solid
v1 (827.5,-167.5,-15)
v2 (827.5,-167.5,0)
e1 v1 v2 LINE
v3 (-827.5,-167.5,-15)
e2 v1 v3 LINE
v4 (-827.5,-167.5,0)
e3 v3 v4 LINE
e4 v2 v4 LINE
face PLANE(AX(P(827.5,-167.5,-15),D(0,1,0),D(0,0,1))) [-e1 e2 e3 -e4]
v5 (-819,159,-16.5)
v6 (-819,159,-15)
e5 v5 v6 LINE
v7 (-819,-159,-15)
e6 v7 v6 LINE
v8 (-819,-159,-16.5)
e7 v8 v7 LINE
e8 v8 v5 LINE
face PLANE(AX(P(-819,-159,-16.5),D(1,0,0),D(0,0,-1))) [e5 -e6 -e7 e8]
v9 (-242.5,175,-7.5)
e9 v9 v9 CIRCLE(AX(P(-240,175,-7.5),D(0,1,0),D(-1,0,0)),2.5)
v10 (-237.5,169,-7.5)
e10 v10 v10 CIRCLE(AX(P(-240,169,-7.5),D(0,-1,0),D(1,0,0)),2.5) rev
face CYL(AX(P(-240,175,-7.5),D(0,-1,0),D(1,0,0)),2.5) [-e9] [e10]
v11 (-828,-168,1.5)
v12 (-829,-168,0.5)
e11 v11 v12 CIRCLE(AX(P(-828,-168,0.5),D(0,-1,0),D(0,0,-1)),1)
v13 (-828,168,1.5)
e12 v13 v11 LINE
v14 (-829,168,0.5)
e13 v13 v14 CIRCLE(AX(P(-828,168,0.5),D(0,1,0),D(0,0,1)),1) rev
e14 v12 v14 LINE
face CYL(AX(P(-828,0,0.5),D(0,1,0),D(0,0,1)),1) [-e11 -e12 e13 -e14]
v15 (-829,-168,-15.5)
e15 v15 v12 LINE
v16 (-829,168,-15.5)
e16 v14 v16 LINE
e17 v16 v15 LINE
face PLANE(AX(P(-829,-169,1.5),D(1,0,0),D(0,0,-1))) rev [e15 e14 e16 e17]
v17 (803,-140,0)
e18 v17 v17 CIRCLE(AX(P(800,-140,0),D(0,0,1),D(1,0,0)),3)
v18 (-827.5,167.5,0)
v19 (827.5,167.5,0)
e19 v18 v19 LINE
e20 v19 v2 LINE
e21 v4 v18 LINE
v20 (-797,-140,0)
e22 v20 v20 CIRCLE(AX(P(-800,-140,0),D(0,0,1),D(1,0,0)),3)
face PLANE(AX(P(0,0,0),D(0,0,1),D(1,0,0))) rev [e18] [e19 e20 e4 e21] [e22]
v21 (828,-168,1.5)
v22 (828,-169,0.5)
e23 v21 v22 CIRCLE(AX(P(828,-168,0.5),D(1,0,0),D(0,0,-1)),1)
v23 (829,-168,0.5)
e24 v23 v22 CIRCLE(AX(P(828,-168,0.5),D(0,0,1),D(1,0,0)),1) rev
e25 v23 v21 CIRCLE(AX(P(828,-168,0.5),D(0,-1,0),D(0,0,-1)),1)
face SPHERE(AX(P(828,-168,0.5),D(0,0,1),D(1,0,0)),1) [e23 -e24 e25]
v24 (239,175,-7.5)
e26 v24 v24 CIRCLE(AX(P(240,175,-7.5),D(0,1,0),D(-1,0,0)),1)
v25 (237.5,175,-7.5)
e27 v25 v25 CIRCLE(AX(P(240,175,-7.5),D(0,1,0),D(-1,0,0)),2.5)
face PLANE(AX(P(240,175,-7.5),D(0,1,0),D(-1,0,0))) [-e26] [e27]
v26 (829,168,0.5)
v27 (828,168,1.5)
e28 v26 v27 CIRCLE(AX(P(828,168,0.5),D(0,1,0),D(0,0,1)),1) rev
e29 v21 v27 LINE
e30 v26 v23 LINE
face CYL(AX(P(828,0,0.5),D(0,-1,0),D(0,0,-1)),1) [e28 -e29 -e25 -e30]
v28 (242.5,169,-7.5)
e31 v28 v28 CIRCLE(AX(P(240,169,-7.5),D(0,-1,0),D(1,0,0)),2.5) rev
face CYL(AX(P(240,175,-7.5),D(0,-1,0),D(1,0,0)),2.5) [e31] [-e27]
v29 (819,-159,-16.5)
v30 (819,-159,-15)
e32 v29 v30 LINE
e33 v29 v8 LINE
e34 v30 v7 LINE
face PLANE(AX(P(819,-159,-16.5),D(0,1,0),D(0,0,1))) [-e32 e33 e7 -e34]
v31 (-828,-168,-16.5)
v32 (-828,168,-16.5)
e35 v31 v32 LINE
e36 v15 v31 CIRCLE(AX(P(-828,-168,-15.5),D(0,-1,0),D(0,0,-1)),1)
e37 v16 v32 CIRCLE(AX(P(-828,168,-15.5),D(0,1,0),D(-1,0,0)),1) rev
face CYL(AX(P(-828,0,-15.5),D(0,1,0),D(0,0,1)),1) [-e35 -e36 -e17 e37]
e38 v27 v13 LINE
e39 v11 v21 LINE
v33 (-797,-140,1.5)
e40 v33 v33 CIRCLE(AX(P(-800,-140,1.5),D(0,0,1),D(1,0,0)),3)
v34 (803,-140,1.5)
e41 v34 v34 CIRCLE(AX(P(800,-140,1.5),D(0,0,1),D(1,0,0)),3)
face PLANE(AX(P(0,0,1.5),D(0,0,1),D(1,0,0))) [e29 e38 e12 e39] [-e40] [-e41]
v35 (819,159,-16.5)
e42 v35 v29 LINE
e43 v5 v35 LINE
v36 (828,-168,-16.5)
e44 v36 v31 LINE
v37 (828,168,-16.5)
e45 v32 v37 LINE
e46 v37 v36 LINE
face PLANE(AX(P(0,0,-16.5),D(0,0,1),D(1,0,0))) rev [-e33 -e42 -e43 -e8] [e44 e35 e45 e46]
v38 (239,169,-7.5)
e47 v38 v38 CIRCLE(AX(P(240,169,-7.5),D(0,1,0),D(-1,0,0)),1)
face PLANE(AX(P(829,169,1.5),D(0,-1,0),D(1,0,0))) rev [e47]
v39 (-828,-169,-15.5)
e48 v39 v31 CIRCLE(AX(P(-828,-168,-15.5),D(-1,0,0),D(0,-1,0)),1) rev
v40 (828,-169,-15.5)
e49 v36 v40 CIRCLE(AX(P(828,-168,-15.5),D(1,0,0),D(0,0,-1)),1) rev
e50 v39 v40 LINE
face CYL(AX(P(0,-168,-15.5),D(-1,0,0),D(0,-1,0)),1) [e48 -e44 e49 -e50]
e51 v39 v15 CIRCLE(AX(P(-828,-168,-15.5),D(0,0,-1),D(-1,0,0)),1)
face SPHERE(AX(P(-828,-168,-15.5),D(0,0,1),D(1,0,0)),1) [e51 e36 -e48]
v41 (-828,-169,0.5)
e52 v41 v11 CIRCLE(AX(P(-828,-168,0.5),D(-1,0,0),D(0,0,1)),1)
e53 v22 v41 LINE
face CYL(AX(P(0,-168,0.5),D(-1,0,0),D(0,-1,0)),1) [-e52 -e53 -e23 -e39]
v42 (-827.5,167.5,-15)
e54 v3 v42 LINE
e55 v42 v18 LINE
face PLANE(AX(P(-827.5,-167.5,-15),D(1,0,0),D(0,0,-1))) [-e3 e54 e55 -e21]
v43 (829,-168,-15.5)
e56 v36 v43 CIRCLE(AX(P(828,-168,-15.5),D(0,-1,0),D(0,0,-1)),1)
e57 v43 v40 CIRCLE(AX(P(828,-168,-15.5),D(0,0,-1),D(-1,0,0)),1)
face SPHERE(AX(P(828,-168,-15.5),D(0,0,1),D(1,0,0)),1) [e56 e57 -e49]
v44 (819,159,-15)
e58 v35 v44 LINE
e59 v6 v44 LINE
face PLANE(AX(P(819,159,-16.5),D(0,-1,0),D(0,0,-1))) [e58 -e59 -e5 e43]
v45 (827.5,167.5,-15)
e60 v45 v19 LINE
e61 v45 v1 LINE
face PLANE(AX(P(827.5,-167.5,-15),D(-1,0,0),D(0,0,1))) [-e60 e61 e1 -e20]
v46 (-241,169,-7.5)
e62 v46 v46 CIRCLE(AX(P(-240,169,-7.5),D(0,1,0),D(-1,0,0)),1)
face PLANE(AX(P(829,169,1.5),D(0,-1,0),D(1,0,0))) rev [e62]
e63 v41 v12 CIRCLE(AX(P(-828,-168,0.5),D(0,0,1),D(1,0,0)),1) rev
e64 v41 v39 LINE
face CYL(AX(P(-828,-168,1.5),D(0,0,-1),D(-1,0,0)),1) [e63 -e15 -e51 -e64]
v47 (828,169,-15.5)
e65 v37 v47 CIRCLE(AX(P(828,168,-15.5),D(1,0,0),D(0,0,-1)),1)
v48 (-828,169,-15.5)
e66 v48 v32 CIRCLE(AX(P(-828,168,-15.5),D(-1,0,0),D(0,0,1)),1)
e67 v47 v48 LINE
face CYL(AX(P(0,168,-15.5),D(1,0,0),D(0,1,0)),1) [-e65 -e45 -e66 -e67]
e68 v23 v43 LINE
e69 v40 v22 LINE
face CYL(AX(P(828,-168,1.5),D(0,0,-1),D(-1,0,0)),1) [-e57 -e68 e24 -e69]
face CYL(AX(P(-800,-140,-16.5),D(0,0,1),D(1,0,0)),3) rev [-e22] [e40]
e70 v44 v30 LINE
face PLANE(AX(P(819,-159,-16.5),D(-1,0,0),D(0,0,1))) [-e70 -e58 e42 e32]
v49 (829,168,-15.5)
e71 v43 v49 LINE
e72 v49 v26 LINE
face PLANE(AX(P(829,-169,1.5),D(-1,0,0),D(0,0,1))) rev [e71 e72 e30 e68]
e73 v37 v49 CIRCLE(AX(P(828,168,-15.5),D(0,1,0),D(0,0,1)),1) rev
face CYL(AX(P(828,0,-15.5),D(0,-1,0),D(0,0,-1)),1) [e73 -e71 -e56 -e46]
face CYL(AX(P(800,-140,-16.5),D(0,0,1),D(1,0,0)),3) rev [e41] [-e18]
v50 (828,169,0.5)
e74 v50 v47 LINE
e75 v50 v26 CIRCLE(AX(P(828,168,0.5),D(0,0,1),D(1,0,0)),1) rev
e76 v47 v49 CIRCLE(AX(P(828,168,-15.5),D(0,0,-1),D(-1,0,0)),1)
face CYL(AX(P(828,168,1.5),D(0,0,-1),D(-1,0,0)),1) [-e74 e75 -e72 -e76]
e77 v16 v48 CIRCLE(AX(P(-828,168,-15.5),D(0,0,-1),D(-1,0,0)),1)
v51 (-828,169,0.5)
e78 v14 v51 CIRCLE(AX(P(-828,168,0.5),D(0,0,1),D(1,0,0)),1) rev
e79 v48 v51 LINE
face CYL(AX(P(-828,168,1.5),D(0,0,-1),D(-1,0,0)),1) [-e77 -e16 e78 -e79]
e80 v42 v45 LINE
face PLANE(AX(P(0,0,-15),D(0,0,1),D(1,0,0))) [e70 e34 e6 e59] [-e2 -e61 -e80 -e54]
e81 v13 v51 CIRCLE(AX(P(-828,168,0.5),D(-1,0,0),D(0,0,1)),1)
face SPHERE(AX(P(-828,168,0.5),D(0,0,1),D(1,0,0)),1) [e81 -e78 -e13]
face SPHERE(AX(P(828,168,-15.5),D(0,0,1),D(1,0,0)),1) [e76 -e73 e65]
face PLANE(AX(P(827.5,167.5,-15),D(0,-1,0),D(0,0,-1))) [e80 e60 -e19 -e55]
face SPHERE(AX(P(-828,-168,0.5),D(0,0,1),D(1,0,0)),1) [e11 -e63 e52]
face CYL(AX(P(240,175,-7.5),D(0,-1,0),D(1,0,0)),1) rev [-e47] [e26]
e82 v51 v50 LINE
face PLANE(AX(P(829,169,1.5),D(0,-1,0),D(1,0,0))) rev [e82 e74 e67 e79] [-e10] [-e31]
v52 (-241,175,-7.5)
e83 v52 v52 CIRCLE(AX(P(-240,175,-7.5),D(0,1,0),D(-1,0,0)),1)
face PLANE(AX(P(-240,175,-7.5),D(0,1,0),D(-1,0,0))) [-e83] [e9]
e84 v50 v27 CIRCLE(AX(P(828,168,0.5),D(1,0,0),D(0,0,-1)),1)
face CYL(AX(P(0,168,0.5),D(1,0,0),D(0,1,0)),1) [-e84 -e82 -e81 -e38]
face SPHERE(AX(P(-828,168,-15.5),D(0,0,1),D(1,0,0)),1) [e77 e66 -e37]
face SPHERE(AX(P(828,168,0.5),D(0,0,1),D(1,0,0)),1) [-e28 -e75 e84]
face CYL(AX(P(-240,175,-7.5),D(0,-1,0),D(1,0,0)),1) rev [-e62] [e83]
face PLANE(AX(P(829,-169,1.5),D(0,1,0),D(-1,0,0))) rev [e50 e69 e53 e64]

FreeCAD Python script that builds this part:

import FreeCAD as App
import Part
import Sketcher
from FreeCAD import Vector


def edges_at(feature, points):
    """Names of the edges that pass closest to the given points."""
    edges = feature.Shape.Edges
    near = lambda p: min(range(len(edges)), key=lambda i: edges[i].distToShape(Part.Vertex(*p))[0])
    return sorted({f"Edge{near(p) + 1}" for p in points})

doc = App.newDocument("Part")
params = doc.addObject("Spreadsheet::Sheet", "Params")
for row, (alias, value) in enumerate([
    ("sketch1_width", "1658 mm"),
    ("sketch1_height", "338 mm"),
    ("pad1_length", "1.5 mm"),
    ("sketch2_width", "1658 mm"),
    ("sketch2_width2", "1655 mm"),
    ("sketch2_height", "338 mm"),
    ("sketch2_height2", "335 mm"),
    ("pad2_length", "15 mm"),
    ("sketch3_width", "1658 mm"),
    ("sketch3_width2", "1638 mm"),
    ("sketch3_height", "338 mm"),
    ("sketch3_height2", "318 mm"),
    ("pad3_length", "1.5 mm"),
    ("sketch4_diameter", "5 mm"),
    ("sketch4_diameter2", "2 mm"),
    ("pad4_length", "6 mm"),
    ("sketch5_diameter", "6 mm"),
    ("fillet_radius", "1 mm"),
], start=1):
    params.set(f"A{row}", alias)
    params.set(f"B{row}", "=" + value)
    params.setAlias(f"B{row}", alias)

body = doc.addObject("PartDesign::Body", "Body")

sketch1 = body.newObject("Sketcher::SketchObject", "Sketch")
sketch1.AttachmentSupport = (doc.getObject("XY_Plane"), [""])
sketch1.MapMode = "FlatFace"
sketch1.addGeometry(Part.LineSegment(Vector(-829, 169, 0), Vector(-829, -169, 0)), False)
sketch1.addGeometry(Part.LineSegment(Vector(-829, -169, 0), Vector(829, -169, 0)), False)
sketch1.addGeometry(Part.LineSegment(Vector(829, -169, 0), Vector(829, 169, 0)), False)
sketch1.addGeometry(Part.LineSegment(Vector(829, 169, 0), Vector(-829, 169, 0)), False)
sketch1.addConstraint(Sketcher.Constraint("Coincident", 0, 2, 1, 1))
sketch1.addConstraint(Sketcher.Constraint("Coincident", 1, 2, 2, 1))
sketch1.addConstraint(Sketcher.Constraint("Coincident", 2, 2, 3, 1))
sketch1.addConstraint(Sketcher.Constraint("Coincident", 3, 2, 0, 1))
sketch1.addConstraint(Sketcher.Constraint("Vertical", 0))
sketch1.addConstraint(Sketcher.Constraint("Horizontal", 1))
sketch1.addConstraint(Sketcher.Constraint("Vertical", 2))
sketch1.addConstraint(Sketcher.Constraint("Horizontal", 3))
sketch1.addConstraint(Sketcher.Constraint("Symmetric", 0, 2, 2, 2, -1, 1))
sketch1.addConstraint(Sketcher.Constraint("DistanceX", 1, 1, 1, 2, 1658.0))
sketch1.addConstraint(Sketcher.Constraint("DistanceY", 0, 2, 0, 1, 338.0))
sketch1.setExpression("Constraints[9]", "Params.sketch1_width")
sketch1.setExpression("Constraints[10]", "Params.sketch1_height")
pad1 = body.newObject("PartDesign::Pad", "Pad")
pad1.Profile = sketch1
pad1.setExpression("Length", "Params.pad1_length")

sketch2 = body.newObject("Sketcher::SketchObject", "Sketch001")
sketch2.AttachmentSupport = (doc.getObject("XY_Plane"), [""])
sketch2.MapMode = "FlatFace"
sketch2.addGeometry(Part.LineSegment(Vector(829, 169, 0), Vector(829, -169, 0)), False)
sketch2.addGeometry(Part.LineSegment(Vector(829, -169, 0), Vector(-829, -169, 0)), False)
sketch2.addGeometry(Part.LineSegment(Vector(-829, -169, 0), Vector(-829, 169, 0)), False)
sketch2.addGeometry(Part.LineSegment(Vector(-829, 169, 0), Vector(829, 169, 0)), False)
sketch2.addGeometry(Part.LineSegment(Vector(-828, -168, 0), Vector(828, -168, 0)), False)
sketch2.addGeometry(Part.LineSegment(Vector(828, -168, 0), Vector(828, 168, 0)), False)
sketch2.addGeometry(Part.LineSegment(Vector(828, 168, 0), Vector(-828, 168, 0)), False)
sketch2.addGeometry(Part.LineSegment(Vector(-828, 168, 0), Vector(-828, -168, 0)), False)
sketch2.addConstraint(Sketcher.Constraint("Coincident", 0, 2, 1, 1))
sketch2.addConstraint(Sketcher.Constraint("Coincident", 1, 2, 2, 1))
sketch2.addConstraint(Sketcher.Constraint("Coincident", 2, 2, 3, 1))
sketch2.addConstraint(Sketcher.Constraint("Coincident", 3, 2, 0, 1))
sketch2.addConstraint(Sketcher.Constraint("Coincident", 4, 2, 5, 1))
sketch2.addConstraint(Sketcher.Constraint("Coincident", 5, 2, 6, 1))
sketch2.addConstraint(Sketcher.Constraint("Coincident", 6, 2, 7, 1))
sketch2.addConstraint(Sketcher.Constraint("Coincident", 7, 2, 4, 1))
sketch2.addConstraint(Sketcher.Constraint("Vertical", 0))
sketch2.addConstraint(Sketcher.Constraint("Horizontal", 1))
sketch2.addConstraint(Sketcher.Constraint("Vertical", 2))
sketch2.addConstraint(Sketcher.Constraint("Horizontal", 3))
sketch2.addConstraint(Sketcher.Constraint("Horizontal", 4))
sketch2.addConstraint(Sketcher.Constraint("Vertical", 5))
sketch2.addConstraint(Sketcher.Constraint("Horizontal", 6))
sketch2.addConstraint(Sketcher.Constraint("Vertical", 7))
sketch2.addConstraint(Sketcher.Constraint("Symmetric", 0, 2, 2, 2, -1, 1))
sketch2.addConstraint(Sketcher.Constraint("Symmetric", 4, 2, 6, 2, -1, 1))
sketch2.addConstraint(Sketcher.Constraint("DistanceX", 1, 2, 1, 1, 1658.0))
sketch2.addConstraint(Sketcher.Constraint("DistanceX", 4, 1, 4, 2, 1655.0))
sketch2.addConstraint(Sketcher.Constraint("DistanceY", 0, 2, 0, 1, 338.0))
sketch2.addConstraint(Sketcher.Constraint("DistanceY", 5, 1, 5, 2, 335.0))
sketch2.setExpression("Constraints[18]", "Params.sketch2_width")
sketch2.setExpression("Constraints[19]", "Params.sketch2_width2")
sketch2.setExpression("Constraints[20]", "Params.sketch2_height")
sketch2.setExpression("Constraints[21]", "Params.sketch2_height2")
pad2 = body.newObject("PartDesign::Pad", "Pad001")
pad2.Profile = sketch2
pad2.setExpression("Length", "Params.pad2_length")
pad2.Reversed = True

sketch3 = body.newObject("Sketcher::SketchObject", "Sketch002")
sketch3.AttachmentSupport = (doc.getObject("XY_Plane"), [""])
sketch3.MapMode = "FlatFace"
sketch3.AttachmentOffset = App.Placement(Vector(0, 0, -15), App.Rotation())
sketch3.addGeometry(Part.LineSegment(Vector(829, 169, 0), Vector(829, -169, 0)), False)
sketch3.addGeometry(Part.LineSegment(Vector(829, -169, 0), Vector(-829, -169, 0)), False)
sketch3.addGeometry(Part.LineSegment(Vector(-829, -169, 0), Vector(-829, 169, 0)), False)
sketch3.addGeometry(Part.LineSegment(Vector(-829, 169, 0), Vector(829, 169, 0)), False)
sketch3.addGeometry(Part.LineSegment(Vector(-819, -159, 0), Vector(819, -159, 0)), False)
sketch3.addGeometry(Part.LineSegment(Vector(819, -159, 0), Vector(819, 159, 0)), False)
sketch3.addGeometry(Part.LineSegment(Vector(819, 159, 0), Vector(-819, 159, 0)), False)
sketch3.addGeometry(Part.LineSegment(Vector(-819, 159, 0), Vector(-819, -159, 0)), False)
sketch3.addConstraint(Sketcher.Constraint("Coincident", 0, 2, 1, 1))
sketch3.addConstraint(Sketcher.Constraint("Coincident", 1, 2, 2, 1))
sketch3.addConstraint(Sketcher.Constraint("Coincident", 2, 2, 3, 1))
sketch3.addConstraint(Sketcher.Constraint("Coincident", 3, 2, 0, 1))
sketch3.addConstraint(Sketcher.Constraint("Coincident", 4, 2, 5, 1))
sketch3.addConstraint(Sketcher.Constraint("Coincident", 5, 2, 6, 1))
sketch3.addConstraint(Sketcher.Constraint("Coincident", 6, 2, 7, 1))
sketch3.addConstraint(Sketcher.Constraint("Coincident", 7, 2, 4, 1))
sketch3.addConstraint(Sketcher.Constraint("Vertical", 0))
sketch3.addConstraint(Sketcher.Constraint("Horizontal", 1))
sketch3.addConstraint(Sketcher.Constraint("Vertical", 2))
sketch3.addConstraint(Sketcher.Constraint("Horizontal", 3))
sketch3.addConstraint(Sketcher.Constraint("Horizontal", 4))
sketch3.addConstraint(Sketcher.Constraint("Vertical", 5))
sketch3.addConstraint(Sketcher.Constraint("Horizontal", 6))
sketch3.addConstraint(Sketcher.Constraint("Vertical", 7))
sketch3.addConstraint(Sketcher.Constraint("Symmetric", 0, 2, 2, 2, -1, 1))
sketch3.addConstraint(Sketcher.Constraint("Symmetric", 4, 2, 6, 2, -1, 1))
sketch3.addConstraint(Sketcher.Constraint("DistanceX", 1, 2, 1, 1, 1658.0))
sketch3.addConstraint(Sketcher.Constraint("DistanceX", 4, 1, 4, 2, 1638.0))
sketch3.addConstraint(Sketcher.Constraint("DistanceY", 0, 2, 0, 1, 338.0))
sketch3.addConstraint(Sketcher.Constraint("DistanceY", 5, 1, 5, 2, 318.0))
sketch3.setExpression("Constraints[18]", "Params.sketch3_width")
sketch3.setExpression("Constraints[19]", "Params.sketch3_width2")
sketch3.setExpression("Constraints[20]", "Params.sketch3_height")
sketch3.setExpression("Constraints[21]", "Params.sketch3_height2")
pad3 = body.newObject("PartDesign::Pad", "Pad002")
pad3.Profile = sketch3
pad3.setExpression("Length", "Params.pad3_length")
pad3.Reversed = True

sketch4 = body.newObject("Sketcher::SketchObject", "Sketch003")
sketch4.AttachmentSupport = (doc.getObject("XZ_Plane"), [""])
sketch4.MapMode = "FlatFace"
sketch4.AttachmentOffset = App.Placement(Vector(0, 0, -169), App.Rotation())
sketch4.addGeometry(Part.Circle(Vector(240, -7.5, 0), Vector(0, 0, 1), 2.5), False)
sketch4.addGeometry(Part.Circle(Vector(240, -7.5, 0), Vector(0, 0, 1), 1), False)
sketch4.addGeometry(Part.Circle(Vector(-240, -7.5, 0), Vector(0, 0, 1), 2.5), False)
sketch4.addGeometry(Part.Circle(Vector(-240, -7.5, 0), Vector(0, 0, 1), 1), False)
sketch4.addConstraint(Sketcher.Constraint("Coincident", 1, 3, 0, 3))
sketch4.addConstraint(Sketcher.Constraint("Coincident", 3, 3, 2, 3))
sketch4.addConstraint(Sketcher.Constraint("Equal", 0, 2))
sketch4.addConstraint(Sketcher.Constraint("Equal", 1, 3))
sketch4.addConstraint(Sketcher.Constraint("Symmetric", 0, 3, 2, 3, -2))
sketch4.addConstraint(Sketcher.Constraint("Diameter", 0, 5.0))
sketch4.addConstraint(Sketcher.Constraint("Diameter", 1, 2.0))
sketch4.addConstraint(Sketcher.Constraint("DistanceX", -1, 1, 0, 3, 240.0))
sketch4.addConstraint(Sketcher.Constraint("DistanceY", 0, 3, -1, 1, 7.5))
sketch4.setExpression("Constraints[5]", "Params.sketch4_diameter")
sketch4.setExpression("Constraints[6]", "Params.sketch4_diameter2")
pad4 = body.newObject("PartDesign::Pad", "Pad003")
pad4.Profile = sketch4
pad4.setExpression("Length", "Params.pad4_length")
pad4.Reversed = True

sketch5 = body.newObject("Sketcher::SketchObject", "Sketch004")
sketch5.AttachmentSupport = (doc.getObject("XY_Plane"), [""])
sketch5.MapMode = "FlatFace"
sketch5.AttachmentOffset = App.Placement(Vector(0, 0, 1.5), App.Rotation())
sketch5.addGeometry(Part.Circle(Vector(-800, -140, 0), Vector(0, 0, 1), 3), False)
sketch5.addGeometry(Part.Circle(Vector(800, -140, 0), Vector(0, 0, 1), 3), False)
sketch5.addConstraint(Sketcher.Constraint("Equal", 0, 1))
sketch5.addConstraint(Sketcher.Constraint("Symmetric", 0, 3, 1, 3, -2))
sketch5.addConstraint(Sketcher.Constraint("Diameter", 0, 6.0))
sketch5.addConstraint(Sketcher.Constraint("DistanceX", 0, 3, -1, 1, 800.0))
sketch5.addConstraint(Sketcher.Constraint("DistanceY", 0, 3, -1, 1, 140.0))
sketch5.setExpression("Constraints[2]", "Params.sketch5_diameter")
pocket1 = body.newObject("PartDesign::Pocket", "Pocket")
pocket1.Profile = sketch5
pocket1.Type = "ThroughAll"
doc.recompute()

fillet = body.newObject("PartDesign::Fillet", "Fillet")
fillet.Base = (pocket1, edges_at(pocket1, [
    (829, 0, 1.5),
    (0, 169, 1.5),
    (-829, 0, -16.5),
    (0, 169, -16.5),
    (829, 0, -16.5),
    (0, -169, -16.5),
    (-829, 0, 1.5),
    (0, -169, 1.5),
    (-829, 169, -7.5),
    (829, 169, -7.5),
    (829, -169, -7.5),
    (-829, -169, -7.5),
]))
fillet.setExpression("Radius", "Params.fillet_radius")

doc.recompute()
